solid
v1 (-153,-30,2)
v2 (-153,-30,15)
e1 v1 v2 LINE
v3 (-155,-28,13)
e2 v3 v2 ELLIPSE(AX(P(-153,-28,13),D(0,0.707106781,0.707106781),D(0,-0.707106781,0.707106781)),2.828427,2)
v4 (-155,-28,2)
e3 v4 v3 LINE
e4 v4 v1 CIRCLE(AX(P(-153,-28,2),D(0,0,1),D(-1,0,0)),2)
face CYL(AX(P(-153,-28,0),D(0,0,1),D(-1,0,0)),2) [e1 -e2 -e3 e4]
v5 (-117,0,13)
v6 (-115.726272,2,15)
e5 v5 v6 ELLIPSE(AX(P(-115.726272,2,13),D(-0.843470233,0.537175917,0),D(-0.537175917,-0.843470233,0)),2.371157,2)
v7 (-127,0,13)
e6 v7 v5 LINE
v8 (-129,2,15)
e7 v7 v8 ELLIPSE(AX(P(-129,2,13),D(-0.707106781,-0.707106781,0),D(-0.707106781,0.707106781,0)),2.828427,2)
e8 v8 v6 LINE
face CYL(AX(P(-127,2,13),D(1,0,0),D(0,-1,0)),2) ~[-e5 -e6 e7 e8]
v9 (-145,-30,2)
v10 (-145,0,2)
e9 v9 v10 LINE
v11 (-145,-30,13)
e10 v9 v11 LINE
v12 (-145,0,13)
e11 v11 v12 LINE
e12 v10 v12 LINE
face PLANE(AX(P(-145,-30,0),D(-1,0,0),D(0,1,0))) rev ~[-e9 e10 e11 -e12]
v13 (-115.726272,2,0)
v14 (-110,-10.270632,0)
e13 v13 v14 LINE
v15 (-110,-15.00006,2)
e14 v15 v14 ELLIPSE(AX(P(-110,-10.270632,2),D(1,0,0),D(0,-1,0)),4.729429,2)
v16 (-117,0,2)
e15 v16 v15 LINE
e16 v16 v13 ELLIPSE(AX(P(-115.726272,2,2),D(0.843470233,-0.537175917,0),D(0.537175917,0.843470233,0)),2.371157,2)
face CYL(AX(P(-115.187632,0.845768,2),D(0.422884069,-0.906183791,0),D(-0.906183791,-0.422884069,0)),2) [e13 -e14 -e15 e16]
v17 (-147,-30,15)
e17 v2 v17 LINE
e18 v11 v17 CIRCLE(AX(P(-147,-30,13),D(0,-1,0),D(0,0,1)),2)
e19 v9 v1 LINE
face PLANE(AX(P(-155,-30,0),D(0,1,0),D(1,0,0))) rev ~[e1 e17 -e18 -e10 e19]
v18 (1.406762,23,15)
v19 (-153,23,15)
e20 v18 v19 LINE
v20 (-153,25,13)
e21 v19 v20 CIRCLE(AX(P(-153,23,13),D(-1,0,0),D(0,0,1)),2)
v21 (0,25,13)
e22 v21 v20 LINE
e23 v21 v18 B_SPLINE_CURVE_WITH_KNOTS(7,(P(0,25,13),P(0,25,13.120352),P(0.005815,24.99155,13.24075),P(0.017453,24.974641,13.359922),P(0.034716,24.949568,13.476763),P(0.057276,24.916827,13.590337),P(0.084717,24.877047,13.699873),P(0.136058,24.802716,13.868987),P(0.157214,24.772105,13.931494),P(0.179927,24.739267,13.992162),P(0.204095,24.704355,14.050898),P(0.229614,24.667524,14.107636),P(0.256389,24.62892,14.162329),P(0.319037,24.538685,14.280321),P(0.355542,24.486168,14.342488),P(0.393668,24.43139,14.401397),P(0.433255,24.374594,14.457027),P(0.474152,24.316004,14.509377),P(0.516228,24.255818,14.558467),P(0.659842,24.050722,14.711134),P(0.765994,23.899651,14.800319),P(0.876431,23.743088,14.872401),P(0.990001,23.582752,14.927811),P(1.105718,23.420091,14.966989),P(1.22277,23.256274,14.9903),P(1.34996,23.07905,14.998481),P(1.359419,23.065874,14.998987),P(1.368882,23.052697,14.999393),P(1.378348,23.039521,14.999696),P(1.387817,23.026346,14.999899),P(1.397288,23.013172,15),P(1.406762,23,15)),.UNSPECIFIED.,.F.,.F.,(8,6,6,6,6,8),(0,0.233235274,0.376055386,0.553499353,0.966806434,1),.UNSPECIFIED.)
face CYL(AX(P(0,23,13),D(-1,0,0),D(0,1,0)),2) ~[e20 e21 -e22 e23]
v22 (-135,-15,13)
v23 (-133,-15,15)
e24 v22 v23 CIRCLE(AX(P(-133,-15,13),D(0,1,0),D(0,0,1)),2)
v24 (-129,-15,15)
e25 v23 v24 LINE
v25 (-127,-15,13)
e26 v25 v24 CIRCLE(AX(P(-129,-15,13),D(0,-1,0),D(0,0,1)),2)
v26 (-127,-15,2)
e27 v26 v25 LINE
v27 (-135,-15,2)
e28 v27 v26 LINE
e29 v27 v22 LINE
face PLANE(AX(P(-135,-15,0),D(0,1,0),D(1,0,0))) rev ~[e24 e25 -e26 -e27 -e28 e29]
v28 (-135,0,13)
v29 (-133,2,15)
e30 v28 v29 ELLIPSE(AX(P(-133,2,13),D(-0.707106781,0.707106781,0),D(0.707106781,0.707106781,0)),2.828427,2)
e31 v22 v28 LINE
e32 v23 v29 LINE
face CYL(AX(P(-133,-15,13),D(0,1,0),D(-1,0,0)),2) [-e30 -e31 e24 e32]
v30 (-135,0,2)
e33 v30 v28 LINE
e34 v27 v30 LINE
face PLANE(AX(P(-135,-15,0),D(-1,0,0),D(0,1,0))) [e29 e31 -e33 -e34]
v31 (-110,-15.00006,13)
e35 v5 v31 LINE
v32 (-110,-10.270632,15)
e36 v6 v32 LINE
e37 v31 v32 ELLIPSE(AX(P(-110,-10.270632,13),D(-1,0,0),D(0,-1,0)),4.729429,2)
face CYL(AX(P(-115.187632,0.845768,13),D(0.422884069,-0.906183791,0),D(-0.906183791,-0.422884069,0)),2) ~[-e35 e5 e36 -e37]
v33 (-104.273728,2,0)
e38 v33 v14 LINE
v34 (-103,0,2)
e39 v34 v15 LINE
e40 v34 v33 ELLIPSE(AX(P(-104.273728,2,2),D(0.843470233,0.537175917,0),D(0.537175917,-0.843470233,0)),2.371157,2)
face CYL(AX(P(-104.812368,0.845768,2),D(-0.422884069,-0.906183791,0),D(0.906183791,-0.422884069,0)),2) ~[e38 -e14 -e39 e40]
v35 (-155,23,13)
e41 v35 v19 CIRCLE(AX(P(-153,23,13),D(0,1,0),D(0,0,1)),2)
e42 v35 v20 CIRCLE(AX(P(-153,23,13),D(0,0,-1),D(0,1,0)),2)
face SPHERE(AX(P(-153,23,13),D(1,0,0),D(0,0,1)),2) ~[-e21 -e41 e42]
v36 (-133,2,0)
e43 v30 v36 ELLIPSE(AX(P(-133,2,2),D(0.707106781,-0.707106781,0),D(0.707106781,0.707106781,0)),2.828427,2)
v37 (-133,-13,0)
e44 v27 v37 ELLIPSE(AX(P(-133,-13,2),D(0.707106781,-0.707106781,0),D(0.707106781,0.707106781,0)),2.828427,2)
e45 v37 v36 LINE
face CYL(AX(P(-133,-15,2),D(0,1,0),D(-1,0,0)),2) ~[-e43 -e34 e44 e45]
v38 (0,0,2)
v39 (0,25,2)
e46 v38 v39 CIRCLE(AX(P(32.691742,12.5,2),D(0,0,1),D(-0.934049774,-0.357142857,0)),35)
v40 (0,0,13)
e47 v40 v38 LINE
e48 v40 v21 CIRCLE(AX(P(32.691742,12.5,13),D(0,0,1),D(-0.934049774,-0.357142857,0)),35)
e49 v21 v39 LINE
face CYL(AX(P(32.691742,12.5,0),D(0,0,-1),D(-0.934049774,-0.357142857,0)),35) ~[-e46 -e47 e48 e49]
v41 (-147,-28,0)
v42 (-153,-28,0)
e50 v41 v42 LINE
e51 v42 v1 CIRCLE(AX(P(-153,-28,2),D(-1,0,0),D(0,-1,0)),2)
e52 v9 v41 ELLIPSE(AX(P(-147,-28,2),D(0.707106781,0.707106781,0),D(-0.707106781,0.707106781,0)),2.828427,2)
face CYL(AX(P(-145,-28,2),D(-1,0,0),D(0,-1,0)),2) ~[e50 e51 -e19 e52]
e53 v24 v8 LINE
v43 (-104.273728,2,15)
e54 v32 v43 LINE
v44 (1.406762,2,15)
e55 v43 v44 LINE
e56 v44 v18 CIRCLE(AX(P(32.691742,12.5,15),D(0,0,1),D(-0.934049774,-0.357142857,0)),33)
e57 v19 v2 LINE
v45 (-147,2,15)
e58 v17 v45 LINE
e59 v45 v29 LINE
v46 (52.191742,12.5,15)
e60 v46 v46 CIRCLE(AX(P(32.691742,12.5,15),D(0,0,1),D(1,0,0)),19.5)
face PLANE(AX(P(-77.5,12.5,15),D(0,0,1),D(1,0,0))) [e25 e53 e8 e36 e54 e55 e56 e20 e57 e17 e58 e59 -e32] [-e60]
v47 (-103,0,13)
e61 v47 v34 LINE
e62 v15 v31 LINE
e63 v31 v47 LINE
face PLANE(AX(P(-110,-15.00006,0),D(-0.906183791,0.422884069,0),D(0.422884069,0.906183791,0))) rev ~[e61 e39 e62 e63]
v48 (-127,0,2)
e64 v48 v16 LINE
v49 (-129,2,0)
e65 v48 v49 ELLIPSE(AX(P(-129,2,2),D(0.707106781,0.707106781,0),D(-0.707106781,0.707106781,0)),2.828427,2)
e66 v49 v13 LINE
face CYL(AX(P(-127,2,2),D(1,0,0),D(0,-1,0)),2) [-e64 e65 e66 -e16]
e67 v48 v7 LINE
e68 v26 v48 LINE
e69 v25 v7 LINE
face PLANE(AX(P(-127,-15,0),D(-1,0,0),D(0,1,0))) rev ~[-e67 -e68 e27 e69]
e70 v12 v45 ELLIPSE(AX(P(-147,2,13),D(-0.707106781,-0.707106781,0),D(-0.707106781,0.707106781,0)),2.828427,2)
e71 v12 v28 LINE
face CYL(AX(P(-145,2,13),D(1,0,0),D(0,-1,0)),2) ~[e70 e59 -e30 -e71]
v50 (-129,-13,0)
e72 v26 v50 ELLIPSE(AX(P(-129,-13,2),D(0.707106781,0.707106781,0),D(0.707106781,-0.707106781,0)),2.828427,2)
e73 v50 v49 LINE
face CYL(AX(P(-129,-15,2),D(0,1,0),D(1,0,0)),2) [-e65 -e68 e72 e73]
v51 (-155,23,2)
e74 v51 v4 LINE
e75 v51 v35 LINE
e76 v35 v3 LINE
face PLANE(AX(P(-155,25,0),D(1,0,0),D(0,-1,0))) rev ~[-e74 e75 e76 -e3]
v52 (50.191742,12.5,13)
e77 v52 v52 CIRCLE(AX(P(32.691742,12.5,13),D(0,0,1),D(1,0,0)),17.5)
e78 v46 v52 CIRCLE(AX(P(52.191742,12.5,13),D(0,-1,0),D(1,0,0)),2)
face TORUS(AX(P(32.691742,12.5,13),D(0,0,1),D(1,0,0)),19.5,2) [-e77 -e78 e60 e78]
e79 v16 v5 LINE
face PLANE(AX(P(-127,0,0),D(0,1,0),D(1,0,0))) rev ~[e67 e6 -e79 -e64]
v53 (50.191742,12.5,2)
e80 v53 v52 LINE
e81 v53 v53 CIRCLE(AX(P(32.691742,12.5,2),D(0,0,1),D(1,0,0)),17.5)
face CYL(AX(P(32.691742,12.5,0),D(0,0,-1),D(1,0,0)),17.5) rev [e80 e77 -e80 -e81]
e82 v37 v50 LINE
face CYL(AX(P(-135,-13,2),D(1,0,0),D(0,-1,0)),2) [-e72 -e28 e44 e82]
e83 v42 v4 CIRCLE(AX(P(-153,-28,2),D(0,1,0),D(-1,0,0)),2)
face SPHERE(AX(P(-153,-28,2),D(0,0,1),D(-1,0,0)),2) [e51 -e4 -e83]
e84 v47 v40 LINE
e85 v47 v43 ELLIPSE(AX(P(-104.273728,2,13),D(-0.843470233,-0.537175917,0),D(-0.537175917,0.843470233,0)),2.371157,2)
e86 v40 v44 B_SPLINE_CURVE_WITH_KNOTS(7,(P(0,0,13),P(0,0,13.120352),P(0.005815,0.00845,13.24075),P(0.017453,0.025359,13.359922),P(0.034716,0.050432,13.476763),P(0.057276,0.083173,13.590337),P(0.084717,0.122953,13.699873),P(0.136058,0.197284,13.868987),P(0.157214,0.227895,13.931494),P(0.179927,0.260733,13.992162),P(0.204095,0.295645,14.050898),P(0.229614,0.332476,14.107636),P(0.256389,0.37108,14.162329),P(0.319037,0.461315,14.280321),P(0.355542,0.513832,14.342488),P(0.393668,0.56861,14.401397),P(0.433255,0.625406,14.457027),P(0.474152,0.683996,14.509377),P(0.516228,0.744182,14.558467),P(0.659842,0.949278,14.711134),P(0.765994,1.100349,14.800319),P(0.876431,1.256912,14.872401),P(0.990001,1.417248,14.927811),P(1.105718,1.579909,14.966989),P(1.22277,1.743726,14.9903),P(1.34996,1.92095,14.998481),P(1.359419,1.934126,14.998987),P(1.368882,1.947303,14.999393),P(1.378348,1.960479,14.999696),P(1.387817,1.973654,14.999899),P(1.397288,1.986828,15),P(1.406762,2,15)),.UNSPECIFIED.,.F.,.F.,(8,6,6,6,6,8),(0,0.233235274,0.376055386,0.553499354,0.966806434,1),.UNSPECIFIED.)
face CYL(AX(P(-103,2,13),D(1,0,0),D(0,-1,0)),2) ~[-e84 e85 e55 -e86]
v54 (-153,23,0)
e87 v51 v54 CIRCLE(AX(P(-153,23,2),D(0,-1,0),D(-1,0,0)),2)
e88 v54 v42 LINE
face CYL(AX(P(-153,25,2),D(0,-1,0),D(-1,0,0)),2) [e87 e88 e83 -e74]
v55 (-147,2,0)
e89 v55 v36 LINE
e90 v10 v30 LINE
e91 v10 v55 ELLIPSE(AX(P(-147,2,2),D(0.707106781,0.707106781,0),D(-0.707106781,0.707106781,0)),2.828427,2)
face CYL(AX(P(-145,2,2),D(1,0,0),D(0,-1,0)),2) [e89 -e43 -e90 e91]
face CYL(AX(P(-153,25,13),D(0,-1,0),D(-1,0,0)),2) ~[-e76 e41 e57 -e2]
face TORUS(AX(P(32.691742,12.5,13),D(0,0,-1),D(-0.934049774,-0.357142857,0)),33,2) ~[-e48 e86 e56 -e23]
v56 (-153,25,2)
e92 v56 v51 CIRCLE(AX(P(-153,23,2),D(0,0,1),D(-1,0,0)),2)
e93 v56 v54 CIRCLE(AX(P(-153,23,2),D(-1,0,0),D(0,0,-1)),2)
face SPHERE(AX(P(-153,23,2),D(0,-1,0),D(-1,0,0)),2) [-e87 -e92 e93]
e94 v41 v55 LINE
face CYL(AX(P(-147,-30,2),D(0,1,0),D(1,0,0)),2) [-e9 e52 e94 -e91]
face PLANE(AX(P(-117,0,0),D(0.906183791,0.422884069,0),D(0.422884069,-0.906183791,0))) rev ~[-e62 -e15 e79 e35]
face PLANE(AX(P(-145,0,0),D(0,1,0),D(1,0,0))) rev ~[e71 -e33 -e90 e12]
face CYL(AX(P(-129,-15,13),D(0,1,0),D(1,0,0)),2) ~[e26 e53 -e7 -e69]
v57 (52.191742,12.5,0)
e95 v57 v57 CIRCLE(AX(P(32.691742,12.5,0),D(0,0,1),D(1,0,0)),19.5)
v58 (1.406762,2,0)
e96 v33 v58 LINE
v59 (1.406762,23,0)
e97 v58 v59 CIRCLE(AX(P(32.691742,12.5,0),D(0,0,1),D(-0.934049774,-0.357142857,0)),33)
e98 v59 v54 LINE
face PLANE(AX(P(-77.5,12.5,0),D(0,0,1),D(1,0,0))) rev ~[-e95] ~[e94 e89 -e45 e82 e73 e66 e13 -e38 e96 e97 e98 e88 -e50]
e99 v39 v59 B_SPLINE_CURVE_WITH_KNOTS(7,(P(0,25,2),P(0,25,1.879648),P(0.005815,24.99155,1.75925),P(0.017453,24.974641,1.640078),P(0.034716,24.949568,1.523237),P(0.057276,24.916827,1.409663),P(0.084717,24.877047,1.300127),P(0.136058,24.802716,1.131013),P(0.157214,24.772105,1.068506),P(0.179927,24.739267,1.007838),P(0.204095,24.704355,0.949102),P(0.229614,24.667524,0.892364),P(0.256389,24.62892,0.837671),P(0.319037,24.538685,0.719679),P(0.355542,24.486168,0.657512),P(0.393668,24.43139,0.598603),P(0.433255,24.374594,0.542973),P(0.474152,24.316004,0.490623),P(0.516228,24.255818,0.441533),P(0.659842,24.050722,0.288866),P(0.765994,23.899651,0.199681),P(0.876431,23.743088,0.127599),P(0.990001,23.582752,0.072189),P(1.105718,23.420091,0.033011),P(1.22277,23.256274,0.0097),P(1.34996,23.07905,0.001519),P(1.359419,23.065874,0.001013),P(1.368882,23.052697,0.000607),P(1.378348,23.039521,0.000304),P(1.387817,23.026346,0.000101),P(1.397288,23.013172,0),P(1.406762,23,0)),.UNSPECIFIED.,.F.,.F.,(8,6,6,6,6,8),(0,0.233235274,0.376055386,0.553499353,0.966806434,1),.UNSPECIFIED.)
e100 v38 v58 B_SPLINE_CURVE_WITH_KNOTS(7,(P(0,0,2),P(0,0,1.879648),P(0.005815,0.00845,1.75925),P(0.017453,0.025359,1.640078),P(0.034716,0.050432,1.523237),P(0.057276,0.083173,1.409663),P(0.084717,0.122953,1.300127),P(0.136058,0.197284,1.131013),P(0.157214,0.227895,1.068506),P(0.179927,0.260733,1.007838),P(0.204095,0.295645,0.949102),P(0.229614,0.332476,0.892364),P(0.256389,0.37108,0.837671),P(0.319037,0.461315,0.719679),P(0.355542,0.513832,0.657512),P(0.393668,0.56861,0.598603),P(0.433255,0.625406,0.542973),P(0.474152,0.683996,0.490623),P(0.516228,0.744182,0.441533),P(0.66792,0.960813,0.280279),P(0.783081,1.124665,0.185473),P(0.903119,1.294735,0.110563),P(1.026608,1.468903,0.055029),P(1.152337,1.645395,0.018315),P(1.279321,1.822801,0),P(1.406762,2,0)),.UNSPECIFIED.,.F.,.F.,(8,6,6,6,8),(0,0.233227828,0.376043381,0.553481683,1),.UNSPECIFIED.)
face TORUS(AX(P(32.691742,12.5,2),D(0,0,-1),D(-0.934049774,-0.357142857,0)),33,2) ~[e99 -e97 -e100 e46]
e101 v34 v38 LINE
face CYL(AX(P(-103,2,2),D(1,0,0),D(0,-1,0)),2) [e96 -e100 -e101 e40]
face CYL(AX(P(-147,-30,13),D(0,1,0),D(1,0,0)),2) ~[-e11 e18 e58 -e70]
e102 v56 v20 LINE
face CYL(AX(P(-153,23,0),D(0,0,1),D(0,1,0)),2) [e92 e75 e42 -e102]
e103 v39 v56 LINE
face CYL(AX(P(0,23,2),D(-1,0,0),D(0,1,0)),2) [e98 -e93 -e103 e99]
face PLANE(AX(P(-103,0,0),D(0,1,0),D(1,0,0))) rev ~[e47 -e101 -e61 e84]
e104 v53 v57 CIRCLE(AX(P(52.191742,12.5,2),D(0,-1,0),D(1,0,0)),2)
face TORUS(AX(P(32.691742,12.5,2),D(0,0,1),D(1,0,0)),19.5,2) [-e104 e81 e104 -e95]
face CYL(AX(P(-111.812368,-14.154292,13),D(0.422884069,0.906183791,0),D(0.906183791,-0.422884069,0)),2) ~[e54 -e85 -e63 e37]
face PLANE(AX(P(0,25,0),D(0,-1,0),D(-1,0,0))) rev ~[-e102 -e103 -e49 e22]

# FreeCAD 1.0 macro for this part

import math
import FreeCAD as App
import Part
import Sketcher
from FreeCAD import Vector
Q = App.Units.Quantity


def edges_at(feature, points):
    """Names of the edges that pass closest to the given points."""
    edges = feature.Shape.Edges
    near = lambda p: min(range(len(edges)), key=lambda i: edges[i].distToShape(Part.Vertex(*p))[0])
    return sorted({f"Edge{near(p) + 1}" for p in points})

doc = App.newDocument("Part")
body = doc.addObject("PartDesign::Body", "Body")

# Sketch on XY plane
sketch1 = body.newObject("Sketcher::SketchObject", "Sketch")
sketch1.AttachmentSupport = (doc.getObject("XY_Plane"), [""])
sketch1.MapMode = "FlatFace"
sketch1.addGeometry(Part.LineSegment(Vector(0, 25, 0), Vector(-155, 25, 0)), False)
sketch1.addGeometry(Part.LineSegment(Vector(-155, 25, 0), Vector(-155, -30, 0)), False)
sketch1.addGeometry(Part.LineSegment(Vector(-155, -30, 0), Vector(-145, -30, 0)), False)
sketch1.addGeometry(Part.LineSegment(Vector(-145, -30, 0), Vector(-145, 0, 0)), False)
sketch1.addGeometry(Part.LineSegment(Vector(-145, 0, 0), Vector(-135, 0, 0)), False)
sketch1.addGeometry(Part.LineSegment(Vector(-135, 0, 0), Vector(-135, -15, 0)), False)
sketch1.addGeometry(Part.LineSegment(Vector(-135, -15, 0), Vector(-127, -15, 0)), False)
sketch1.addGeometry(Part.LineSegment(Vector(-127, -15, 0), Vector(-127, 0, 0)), False)
sketch1.addGeometry(Part.LineSegment(Vector(-127, 0, 0), Vector(-117, 0, 0)), False)
sketch1.addGeometry(Part.LineSegment(Vector(-117, 0, 0), Vector(-110, -15, 0)), False)
sketch1.addGeometry(Part.LineSegment(Vector(-110, -15, 0), Vector(-103, 0, 0)), False)
sketch1.addGeometry(Part.LineSegment(Vector(-103, 0, 0), Vector(0, 0, 0)), False)
sketch1.addGeometry(Part.ArcOfCircle(Part.Circle(Vector(33, 12, 0), Vector(0, 0, 1), 35), math.radians(-159), math.radians(159)), False)
sketch1.addGeometry(Part.Circle(Vector(33, 12, 0), Vector(0, 0, 1), 18), False)
sketch1.addConstraint(Sketcher.Constraint("Coincident", 0, 2, 1, 1))
sketch1.addConstraint(Sketcher.Constraint("Coincident", 1, 2, 2, 1))
sketch1.addConstraint(Sketcher.Constraint("Coincident", 2, 2, 3, 1))
sketch1.addConstraint(Sketcher.Constraint("Coincident", 3, 2, 4, 1))
sketch1.addConstraint(Sketcher.Constraint("Coincident", 4, 2, 5, 1))
sketch1.addConstraint(Sketcher.Constraint("Coincident", 5, 2, 6, 1))
sketch1.addConstraint(Sketcher.Constraint("Coincident", 6, 2, 7, 1))
sketch1.addConstraint(Sketcher.Constraint("Coincident", 7, 2, 8, 1))
sketch1.addConstraint(Sketcher.Constraint("Coincident", 8, 2, 9, 1))
sketch1.addConstraint(Sketcher.Constraint("Coincident", 9, 2, 10, 1))
sketch1.addConstraint(Sketcher.Constraint("Coincident", 10, 2, 11, 1))
sketch1.addConstraint(Sketcher.Constraint("Coincident", 11, 2, 12, 1))
sketch1.addConstraint(Sketcher.Constraint("Coincident", 12, 2, 0, 1))
sketch1.addConstraint(Sketcher.Constraint("Horizontal", 0))
sketch1.addConstraint(Sketcher.Constraint("Vertical", 1))
sketch1.addConstraint(Sketcher.Constraint("Horizontal", 2))
sketch1.addConstraint(Sketcher.Constraint("Vertical", 3))
sketch1.addConstraint(Sketcher.Constraint("Horizontal", 4))
sketch1.addConstraint(Sketcher.Constraint("Vertical", 5))
sketch1.addConstraint(Sketcher.Constraint("Horizontal", 6))
sketch1.addConstraint(Sketcher.Constraint("Vertical", 7))
sketch1.addConstraint(Sketcher.Constraint("Horizontal", 8))
sketch1.addConstraint(Sketcher.Constraint("Horizontal", 11))
sketch1.addConstraint(Sketcher.Constraint("Coincident", 11, 2, -1, 1))
sketch1.addConstraint(Sketcher.Constraint("Coincident", 13, 3, 12, 3))
sketch1.addConstraint(Sketcher.Constraint("PointOnObject", 3, 2, -1))
sketch1.addConstraint(Sketcher.Constraint("PointOnObject", 7, 2, -1))
sketch1.addConstraint(Sketcher.Constraint("PointOnObject", 12, 2, -2))
sketch1.addConstraint(Sketcher.Constraint("Equal", 2, 4))
sketch1.addConstraint(Sketcher.Constraint("Equal", 4, 8))
sketch1.addConstraint(Sketcher.Constraint("Equal", 9, 10))
sketch1.addConstraint(Sketcher.Constraint("Diameter", 13, Q("35 mm")))
sketch1.addConstraint(Sketcher.Constraint("Radius", 12, Q("35 mm")))
sketch1.addConstraint(Sketcher.Constraint("DistanceX", 0, 2, 0, 1, Q("155 mm")))
sketch1.addConstraint(Sketcher.Constraint("DistanceX", 2, 1, 2, 2, Q("10 mm")))
sketch1.addConstraint(Sketcher.Constraint("DistanceX", 6, 1, 6, 2, Q("8 mm")))
sketch1.addConstraint(Sketcher.Constraint("DistanceX", 11, 1, 11, 2, Q("103 mm")))
sketch1.addConstraint(Sketcher.Constraint("DistanceY", 1, 2, 1, 1, Q("55 mm")))
sketch1.addConstraint(Sketcher.Constraint("DistanceY", 3, 1, 3, 2, Q("30 mm")))
sketch1.addConstraint(Sketcher.Constraint("DistanceY", 5, 2, 5, 1, Q("15 mm")))
sketch1.addConstraint(Sketcher.Constraint("Distance", 9, Q("16.553 mm")))
pad1 = body.newObject("PartDesign::Pad", "Pad")
pad1.Profile = sketch1
pad1.Length = 15
doc.recompute()

fillet = body.newObject("PartDesign::Fillet", "Fillet")
fillet.Base = (pad1, edges_at(pad1, [
    (-77.5, 25, 15),
    (-77.5, 25, 0),
    (-155, -2.5, 0),
    (-155, -2.5, 15),
    (-51.5, 0, 0),
    (-150, -30, 15),
    (-145, -15, 15),
    (-140, 0, 15),
    (-135, -7.5, 15),
    (-131, -15, 15),
    (-127, -7.5, 15),
    (-122, 0, 15),
    (-113.5, -7.5, 15),
    (-106.5, -7.5, 15),
    (-51.5, 0, 15),
    (67.692, 12.5, 15),
    (15.192, 12.5, 15),
]))
fillet.Radius = 2

# Sketch on XY plane
sketch2 = body.newObject("Sketcher::SketchObject", "Sketch001")
sketch2.AttachmentSupport = (doc.getObject("XY_Plane"), [""])
sketch2.MapMode = "FlatFace"
sketch2.addGeometry(Part.LineSegment(Vector(0, 25, 0), Vector(-155, 25, 0)), False)
sketch2.addGeometry(Part.LineSegment(Vector(-155, 25, 0), Vector(-155, -30, 0)), False)
sketch2.addGeometry(Part.LineSegment(Vector(-155, -30, 0), Vector(-145, -30, 0)), False)
sketch2.addGeometry(Part.LineSegment(Vector(-145, -30, 0), Vector(-145, 0, 0)), False)
sketch2.addGeometry(Part.LineSegment(Vector(-145, 0, 0), Vector(-135, 0, 0)), False)
sketch2.addGeometry(Part.LineSegment(Vector(-135, 0, 0), Vector(-135, -15, 0)), False)
sketch2.addGeometry(Part.LineSegment(Vector(-135, -15, 0), Vector(-127, -15, 0)), False)
sketch2.addGeometry(Part.LineSegment(Vector(-127, -15, 0), Vector(-127, 0, 0)), False)
sketch2.addGeometry(Part.LineSegment(Vector(-127, 0, 0), Vector(-117, 0, 0)), False)
sketch2.addGeometry(Part.LineSegment(Vector(-117, 0, 0), Vector(-110, -15, 0)), False)
sketch2.addGeometry(Part.LineSegment(Vector(-110, -15, 0), Vector(-103, 0, 0)), False)
sketch2.addGeometry(Part.LineSegment(Vector(-103, 0, 0), Vector(0, 0, 0)), False)
sketch2.addGeometry(Part.ArcOfCircle(Part.Circle(Vector(33, 12, 0), Vector(0, 0, 1), 35), math.radians(-159), math.radians(159)), False)
sketch2.addGeometry(Part.Circle(Vector(33, 12, 0), Vector(0, 0, 1), 18), False)
sketch2.addConstraint(Sketcher.Constraint("Coincident", 0, 2, 1, 1))
sketch2.addConstraint(Sketcher.Constraint("Coincident", 1, 2, 2, 1))
sketch2.addConstraint(Sketcher.Constraint("Coincident", 2, 2, 3, 1))
sketch2.addConstraint(Sketcher.Constraint("Coincident", 3, 2, 4, 1))
sketch2.addConstraint(Sketcher.Constraint("Coincident", 4, 2, 5, 1))
sketch2.addConstraint(Sketcher.Constraint("Coincident", 5, 2, 6, 1))
sketch2.addConstraint(Sketcher.Constraint("Coincident", 6, 2, 7, 1))
sketch2.addConstraint(Sketcher.Constraint("Coincident", 7, 2, 8, 1))
sketch2.addConstraint(Sketcher.Constraint("Coincident", 8, 2, 9, 1))
sketch2.addConstraint(Sketcher.Constraint("Coincident", 9, 2, 10, 1))
sketch2.addConstraint(Sketcher.Constraint("Coincident", 10, 2, 11, 1))
sketch2.addConstraint(Sketcher.Constraint("Coincident", 11, 2, 12, 1))
sketch2.addConstraint(Sketcher.Constraint("Coincident", 12, 2, 0, 1))
sketch2.addConstraint(Sketcher.Constraint("Horizontal", 0))
sketch2.addConstraint(Sketcher.Constraint("Vertical", 1))
sketch2.addConstraint(Sketcher.Constraint("Horizontal", 2))
sketch2.addConstraint(Sketcher.Constraint("Vertical", 3))
sketch2.addConstraint(Sketcher.Constraint("Horizontal", 4))
sketch2.addConstraint(Sketcher.Constraint("Vertical", 5))
sketch2.addConstraint(Sketcher.Constraint("Horizontal", 6))
sketch2.addConstraint(Sketcher.Constraint("Vertical", 7))
sketch2.addConstraint(Sketcher.Constraint("Horizontal", 8))
sketch2.addConstraint(Sketcher.Constraint("Horizontal", 11))
sketch2.addConstraint(Sketcher.Constraint("Coincident", 11, 2, -1, 1))
sketch2.addConstraint(Sketcher.Constraint("Coincident", 13, 3, 12, 3))
sketch2.addConstraint(Sketcher.Constraint("PointOnObject", 3, 2, -1))
sketch2.addConstraint(Sketcher.Constraint("PointOnObject", 7, 2, -1))
sketch2.addConstraint(Sketcher.Constraint("PointOnObject", 12, 2, -2))
sketch2.addConstraint(Sketcher.Constraint("Equal", 2, 4))
sketch2.addConstraint(Sketcher.Constraint("Equal", 4, 8))
sketch2.addConstraint(Sketcher.Constraint("Equal", 9, 10))
sketch2.addConstraint(Sketcher.Constraint("Diameter", 13, Q("35 mm")))
sketch2.addConstraint(Sketcher.Constraint("Radius", 12, Q("35 mm")))
sketch2.addConstraint(Sketcher.Constraint("DistanceX", 0, 2, 0, 1, Q("155 mm")))
sketch2.addConstraint(Sketcher.Constraint("DistanceX", 2, 1, 2, 2, Q("10 mm")))
sketch2.addConstraint(Sketcher.Constraint("DistanceX", 6, 1, 6, 2, Q("8 mm")))
sketch2.addConstraint(Sketcher.Constraint("DistanceX", 11, 1, 11, 2, Q("103 mm")))
sketch2.addConstraint(Sketcher.Constraint("DistanceY", 1, 2, 1, 1, Q("55 mm")))
sketch2.addConstraint(Sketcher.Constraint("DistanceY", 3, 1, 3, 2, Q("30 mm")))
sketch2.addConstraint(Sketcher.Constraint("DistanceY", 5, 2, 5, 1, Q("15 mm")))
sketch2.addConstraint(Sketcher.Constraint("Distance", 9, Q("16.553 mm")))
pad2 = body.newObject("PartDesign::Pad", "Pad001")
pad2.Profile = sketch2
pad2.Length = 15
doc.recompute()

fillet2 = body.newObject("PartDesign::Fillet", "Fillet001")
fillet2.Base = (pad2, edges_at(pad2, [
    (-77.5, 25, 15),
    (-155, -2.5, 15),
    (-145, -15, 15),
    (-135, -7.5, 15),
    (-127, -7.5, 15),
    (-113.5, -7.5, 15),
    (-106.5, -7.5, 15),
    (-51.5, 0, 15),
    (-122, 0, 15),
    (-140, 0, 15),
    (-155, -30, 7.5),
    (-155, -2.5, 0),
    (-155, 25, 7.5),
    (67.692, 12.5, 15),
    (15.192, 12.5, 15),
    (15.192, 12.5, 0),
    (67.692, 12.5, 0),
    (-77.5, 25, 0),
    (-150, -30, 0),
    (-145, -15, 0),
    (-140, 0, 0),
    (-135, -7.5, 0),
    (-131, -15, 0),
    (-127, -7.5, 0),
    (-122, 0, 0),
    (-113.5, -7.5, 0),
    (-106.5, -7.5, 0),
    (-51.5, 0, 0),
]))
fillet2.Radius = 2

doc.recompute()
